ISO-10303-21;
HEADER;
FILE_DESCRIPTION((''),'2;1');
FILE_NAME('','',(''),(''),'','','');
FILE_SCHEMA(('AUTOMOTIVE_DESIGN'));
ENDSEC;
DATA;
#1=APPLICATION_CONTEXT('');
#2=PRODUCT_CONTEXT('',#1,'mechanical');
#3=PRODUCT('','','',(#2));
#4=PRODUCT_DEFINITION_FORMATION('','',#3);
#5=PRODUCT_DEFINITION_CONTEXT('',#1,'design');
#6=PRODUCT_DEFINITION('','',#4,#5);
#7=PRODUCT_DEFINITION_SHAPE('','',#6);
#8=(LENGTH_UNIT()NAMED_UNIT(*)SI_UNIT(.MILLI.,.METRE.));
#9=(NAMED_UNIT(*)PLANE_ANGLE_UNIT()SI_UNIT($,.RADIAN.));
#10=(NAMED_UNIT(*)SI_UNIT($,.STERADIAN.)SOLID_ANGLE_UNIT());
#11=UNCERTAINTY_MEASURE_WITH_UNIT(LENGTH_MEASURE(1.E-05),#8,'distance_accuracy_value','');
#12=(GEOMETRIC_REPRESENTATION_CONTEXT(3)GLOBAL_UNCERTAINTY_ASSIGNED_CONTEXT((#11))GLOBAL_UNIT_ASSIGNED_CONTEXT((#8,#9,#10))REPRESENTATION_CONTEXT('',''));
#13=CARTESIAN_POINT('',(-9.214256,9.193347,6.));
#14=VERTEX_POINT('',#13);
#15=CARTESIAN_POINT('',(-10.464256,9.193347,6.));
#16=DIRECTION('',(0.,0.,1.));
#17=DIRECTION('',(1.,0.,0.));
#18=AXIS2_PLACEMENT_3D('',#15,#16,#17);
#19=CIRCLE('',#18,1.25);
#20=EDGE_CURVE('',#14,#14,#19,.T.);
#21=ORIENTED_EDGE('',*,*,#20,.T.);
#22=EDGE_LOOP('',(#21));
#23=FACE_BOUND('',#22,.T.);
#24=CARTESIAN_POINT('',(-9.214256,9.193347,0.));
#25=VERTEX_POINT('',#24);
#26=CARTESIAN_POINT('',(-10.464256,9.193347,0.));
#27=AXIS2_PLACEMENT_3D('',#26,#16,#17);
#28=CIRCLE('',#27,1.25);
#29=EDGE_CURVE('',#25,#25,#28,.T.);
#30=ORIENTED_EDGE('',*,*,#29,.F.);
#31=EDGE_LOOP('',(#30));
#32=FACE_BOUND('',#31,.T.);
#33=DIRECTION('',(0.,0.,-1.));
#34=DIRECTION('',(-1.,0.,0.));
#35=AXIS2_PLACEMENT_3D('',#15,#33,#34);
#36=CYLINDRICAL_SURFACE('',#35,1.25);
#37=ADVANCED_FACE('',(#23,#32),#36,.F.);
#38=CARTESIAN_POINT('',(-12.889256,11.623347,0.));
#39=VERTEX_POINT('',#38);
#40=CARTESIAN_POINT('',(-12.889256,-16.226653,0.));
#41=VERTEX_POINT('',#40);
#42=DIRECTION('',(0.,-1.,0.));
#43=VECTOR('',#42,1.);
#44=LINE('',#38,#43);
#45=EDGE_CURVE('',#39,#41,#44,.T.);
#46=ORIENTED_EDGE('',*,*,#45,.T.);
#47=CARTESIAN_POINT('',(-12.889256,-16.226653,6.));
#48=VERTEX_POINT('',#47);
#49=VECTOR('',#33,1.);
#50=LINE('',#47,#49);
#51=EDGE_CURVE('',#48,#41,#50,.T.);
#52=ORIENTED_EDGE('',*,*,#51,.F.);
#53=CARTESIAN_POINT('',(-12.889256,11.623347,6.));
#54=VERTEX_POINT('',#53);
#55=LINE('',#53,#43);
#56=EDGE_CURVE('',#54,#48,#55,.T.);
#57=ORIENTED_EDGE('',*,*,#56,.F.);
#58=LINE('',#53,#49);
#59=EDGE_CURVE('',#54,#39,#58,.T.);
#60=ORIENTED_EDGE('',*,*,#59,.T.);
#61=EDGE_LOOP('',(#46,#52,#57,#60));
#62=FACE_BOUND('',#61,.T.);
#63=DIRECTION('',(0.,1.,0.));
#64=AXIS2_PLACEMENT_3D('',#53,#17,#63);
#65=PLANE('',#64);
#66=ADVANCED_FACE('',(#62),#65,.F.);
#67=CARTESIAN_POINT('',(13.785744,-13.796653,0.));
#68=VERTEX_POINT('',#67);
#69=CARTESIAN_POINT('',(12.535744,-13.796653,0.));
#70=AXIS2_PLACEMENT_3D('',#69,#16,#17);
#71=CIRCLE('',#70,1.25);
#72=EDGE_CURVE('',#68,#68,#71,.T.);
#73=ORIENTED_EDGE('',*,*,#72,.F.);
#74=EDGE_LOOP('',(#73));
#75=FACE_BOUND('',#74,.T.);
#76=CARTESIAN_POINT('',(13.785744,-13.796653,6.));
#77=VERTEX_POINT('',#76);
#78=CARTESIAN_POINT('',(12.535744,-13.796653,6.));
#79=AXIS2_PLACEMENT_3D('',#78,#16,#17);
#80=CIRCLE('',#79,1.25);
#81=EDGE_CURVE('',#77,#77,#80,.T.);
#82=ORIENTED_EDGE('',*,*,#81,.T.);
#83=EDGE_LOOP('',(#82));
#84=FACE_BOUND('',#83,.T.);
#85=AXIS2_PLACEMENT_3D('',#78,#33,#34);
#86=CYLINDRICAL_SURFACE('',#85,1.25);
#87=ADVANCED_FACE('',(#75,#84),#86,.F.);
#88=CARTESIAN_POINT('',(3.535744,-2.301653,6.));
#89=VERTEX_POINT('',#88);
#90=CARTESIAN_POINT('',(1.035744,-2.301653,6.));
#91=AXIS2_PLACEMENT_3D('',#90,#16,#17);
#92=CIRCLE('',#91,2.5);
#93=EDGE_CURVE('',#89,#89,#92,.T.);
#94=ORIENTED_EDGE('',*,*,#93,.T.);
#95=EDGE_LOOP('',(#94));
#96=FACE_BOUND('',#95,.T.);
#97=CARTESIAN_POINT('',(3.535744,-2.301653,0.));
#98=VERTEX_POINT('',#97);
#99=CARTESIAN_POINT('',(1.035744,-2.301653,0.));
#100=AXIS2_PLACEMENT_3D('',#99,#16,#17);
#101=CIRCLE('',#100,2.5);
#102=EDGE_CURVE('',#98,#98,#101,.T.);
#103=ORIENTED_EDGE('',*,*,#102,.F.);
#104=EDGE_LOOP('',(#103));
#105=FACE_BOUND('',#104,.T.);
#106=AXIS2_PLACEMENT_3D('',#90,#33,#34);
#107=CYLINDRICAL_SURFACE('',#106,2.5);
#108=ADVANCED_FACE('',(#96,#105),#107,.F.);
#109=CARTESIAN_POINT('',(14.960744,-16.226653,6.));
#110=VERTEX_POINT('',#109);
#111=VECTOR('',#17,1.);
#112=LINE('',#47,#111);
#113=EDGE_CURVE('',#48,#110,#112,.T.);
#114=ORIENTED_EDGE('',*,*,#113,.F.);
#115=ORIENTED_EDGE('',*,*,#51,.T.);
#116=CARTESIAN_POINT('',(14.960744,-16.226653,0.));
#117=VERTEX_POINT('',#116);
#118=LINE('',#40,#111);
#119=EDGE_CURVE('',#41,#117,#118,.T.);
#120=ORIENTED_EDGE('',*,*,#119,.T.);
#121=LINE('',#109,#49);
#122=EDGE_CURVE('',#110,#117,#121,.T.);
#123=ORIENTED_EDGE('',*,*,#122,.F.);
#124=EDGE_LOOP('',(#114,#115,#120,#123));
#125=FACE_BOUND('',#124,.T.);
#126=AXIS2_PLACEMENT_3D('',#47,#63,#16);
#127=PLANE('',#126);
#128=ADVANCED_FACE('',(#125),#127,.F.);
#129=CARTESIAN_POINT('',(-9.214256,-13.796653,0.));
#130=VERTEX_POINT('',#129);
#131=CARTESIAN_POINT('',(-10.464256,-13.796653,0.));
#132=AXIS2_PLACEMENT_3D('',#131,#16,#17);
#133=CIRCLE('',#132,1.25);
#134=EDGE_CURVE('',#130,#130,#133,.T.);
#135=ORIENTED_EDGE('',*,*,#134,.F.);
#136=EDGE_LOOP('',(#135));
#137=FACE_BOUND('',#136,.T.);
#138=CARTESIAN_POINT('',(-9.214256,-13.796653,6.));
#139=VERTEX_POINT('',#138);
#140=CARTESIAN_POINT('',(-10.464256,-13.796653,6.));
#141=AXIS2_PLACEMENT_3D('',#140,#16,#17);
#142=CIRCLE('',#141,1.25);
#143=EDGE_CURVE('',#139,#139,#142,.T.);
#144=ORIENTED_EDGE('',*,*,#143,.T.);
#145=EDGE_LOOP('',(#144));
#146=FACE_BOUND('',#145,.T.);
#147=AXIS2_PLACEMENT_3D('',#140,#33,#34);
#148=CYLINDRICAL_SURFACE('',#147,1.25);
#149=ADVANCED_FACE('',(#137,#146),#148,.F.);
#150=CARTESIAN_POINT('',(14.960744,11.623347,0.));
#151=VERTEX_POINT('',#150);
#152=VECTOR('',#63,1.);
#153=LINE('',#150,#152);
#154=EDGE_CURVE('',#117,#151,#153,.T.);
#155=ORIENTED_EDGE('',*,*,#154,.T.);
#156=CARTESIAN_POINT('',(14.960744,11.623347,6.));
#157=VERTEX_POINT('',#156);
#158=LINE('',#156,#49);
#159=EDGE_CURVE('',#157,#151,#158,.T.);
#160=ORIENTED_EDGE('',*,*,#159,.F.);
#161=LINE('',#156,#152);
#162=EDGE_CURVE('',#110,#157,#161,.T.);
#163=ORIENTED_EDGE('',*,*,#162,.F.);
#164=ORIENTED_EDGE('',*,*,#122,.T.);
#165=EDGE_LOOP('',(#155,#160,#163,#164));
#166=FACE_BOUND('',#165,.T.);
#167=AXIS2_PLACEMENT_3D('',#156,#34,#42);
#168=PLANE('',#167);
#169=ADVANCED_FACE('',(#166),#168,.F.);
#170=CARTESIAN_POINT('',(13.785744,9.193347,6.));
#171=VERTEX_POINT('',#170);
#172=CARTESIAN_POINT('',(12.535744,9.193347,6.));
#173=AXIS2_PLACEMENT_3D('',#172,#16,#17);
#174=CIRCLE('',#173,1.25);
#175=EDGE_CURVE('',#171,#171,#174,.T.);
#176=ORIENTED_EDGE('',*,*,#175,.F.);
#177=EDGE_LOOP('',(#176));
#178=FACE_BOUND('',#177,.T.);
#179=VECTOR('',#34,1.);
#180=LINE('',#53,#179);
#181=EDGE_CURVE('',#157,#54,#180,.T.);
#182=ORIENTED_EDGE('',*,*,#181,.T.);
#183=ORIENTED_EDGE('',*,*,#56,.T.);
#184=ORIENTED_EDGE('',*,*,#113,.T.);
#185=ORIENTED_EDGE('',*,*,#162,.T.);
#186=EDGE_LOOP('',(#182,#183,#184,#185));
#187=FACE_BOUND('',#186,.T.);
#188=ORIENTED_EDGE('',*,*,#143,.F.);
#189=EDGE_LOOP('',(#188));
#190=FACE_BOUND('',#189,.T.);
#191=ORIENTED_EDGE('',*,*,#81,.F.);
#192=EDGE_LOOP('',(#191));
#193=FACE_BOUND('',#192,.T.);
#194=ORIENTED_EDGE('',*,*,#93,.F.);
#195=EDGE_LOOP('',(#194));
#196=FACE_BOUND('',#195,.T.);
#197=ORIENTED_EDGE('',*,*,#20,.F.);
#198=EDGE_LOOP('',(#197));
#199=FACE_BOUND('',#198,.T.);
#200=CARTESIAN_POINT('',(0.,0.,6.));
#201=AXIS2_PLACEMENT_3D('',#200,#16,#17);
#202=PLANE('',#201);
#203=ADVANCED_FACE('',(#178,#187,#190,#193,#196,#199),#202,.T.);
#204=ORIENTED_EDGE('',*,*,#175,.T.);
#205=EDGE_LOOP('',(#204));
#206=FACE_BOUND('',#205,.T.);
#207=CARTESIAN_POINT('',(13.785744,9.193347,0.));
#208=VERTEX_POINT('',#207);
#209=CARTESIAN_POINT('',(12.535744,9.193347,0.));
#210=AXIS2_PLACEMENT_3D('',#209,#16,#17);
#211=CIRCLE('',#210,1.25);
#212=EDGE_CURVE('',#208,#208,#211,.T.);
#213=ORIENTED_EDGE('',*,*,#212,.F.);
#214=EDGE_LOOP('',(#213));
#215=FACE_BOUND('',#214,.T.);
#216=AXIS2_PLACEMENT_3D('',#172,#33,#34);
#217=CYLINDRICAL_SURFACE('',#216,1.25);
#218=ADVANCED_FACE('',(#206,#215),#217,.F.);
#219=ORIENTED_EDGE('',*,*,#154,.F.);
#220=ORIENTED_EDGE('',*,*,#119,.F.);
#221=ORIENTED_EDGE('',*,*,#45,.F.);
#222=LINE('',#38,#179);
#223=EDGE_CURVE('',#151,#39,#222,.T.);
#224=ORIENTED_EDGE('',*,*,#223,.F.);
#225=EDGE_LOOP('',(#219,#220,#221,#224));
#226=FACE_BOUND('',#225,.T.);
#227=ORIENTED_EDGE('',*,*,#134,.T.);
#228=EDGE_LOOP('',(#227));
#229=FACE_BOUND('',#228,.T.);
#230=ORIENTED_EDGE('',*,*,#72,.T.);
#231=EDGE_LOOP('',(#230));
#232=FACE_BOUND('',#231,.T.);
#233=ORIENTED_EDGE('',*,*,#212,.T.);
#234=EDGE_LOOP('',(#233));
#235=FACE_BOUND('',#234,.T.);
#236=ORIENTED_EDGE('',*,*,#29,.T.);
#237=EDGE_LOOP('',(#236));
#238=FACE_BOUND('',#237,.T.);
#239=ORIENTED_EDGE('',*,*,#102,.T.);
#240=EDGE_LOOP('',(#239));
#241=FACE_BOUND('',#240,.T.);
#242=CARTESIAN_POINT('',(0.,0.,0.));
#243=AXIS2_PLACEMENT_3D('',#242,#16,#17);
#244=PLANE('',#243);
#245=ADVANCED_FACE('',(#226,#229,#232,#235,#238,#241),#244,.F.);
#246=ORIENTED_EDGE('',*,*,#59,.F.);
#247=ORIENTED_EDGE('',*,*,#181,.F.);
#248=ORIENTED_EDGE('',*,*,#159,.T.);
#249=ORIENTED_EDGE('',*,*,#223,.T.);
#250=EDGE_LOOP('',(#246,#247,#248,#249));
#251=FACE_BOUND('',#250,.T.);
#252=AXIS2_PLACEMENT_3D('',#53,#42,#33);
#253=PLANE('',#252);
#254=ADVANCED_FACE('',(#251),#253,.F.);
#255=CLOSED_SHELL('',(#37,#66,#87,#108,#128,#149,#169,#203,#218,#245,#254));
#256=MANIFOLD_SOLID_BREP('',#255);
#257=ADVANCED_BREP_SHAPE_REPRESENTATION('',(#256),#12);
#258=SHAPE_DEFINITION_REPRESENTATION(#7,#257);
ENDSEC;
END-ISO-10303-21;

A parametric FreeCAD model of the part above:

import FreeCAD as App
import Part
import Sketcher

V = App.Vector

doc = App.newDocument("Part")
body = doc.addObject("PartDesign::Body", "Body")

sketch1 = body.newObject("Sketcher::SketchObject", "Sketch")
sketch1.AttachmentSupport = (doc.getObject("XY_Plane"), [""])
sketch1.MapMode = "FlatFace"
sketch1.addGeometry([
    Part.LineSegment(V(-12.9, 11.6, 0), V(-12.9, -16.2, 0)),
    Part.LineSegment(V(-12.9, -16.2, 0), V(15, -16.2, 0)),
    Part.LineSegment(V(15, -16.2, 0), V(15, 11.6, 0)),
    Part.LineSegment(V(15, 11.6, 0), V(-12.9, 11.6, 0)),
    Part.Circle(V(-10.5, -13.8, 0), V(0, 0, 1), 1.2),
    Part.Circle(V(12.5, -13.8, 0), V(0, 0, 1), 1.2),
    Part.Circle(V(-10.5, 9.2, 0), V(0, 0, 1), 1.2),
    Part.Circle(V(1, -2.3, 0), V(0, 0, 1), 2.5),
    Part.Circle(V(12.5, 9.2, 0), V(0, 0, 1), 1.2),
], False)
sketch1.addConstraint([
    Sketcher.Constraint("Coincident", 0, 2, 1, 1),
    Sketcher.Constraint("Coincident", 1, 2, 2, 1),
    Sketcher.Constraint("Coincident", 2, 2, 3, 1),
    Sketcher.Constraint("Coincident", 3, 2, 0, 1),
    Sketcher.Constraint("Vertical", 0),
    Sketcher.Constraint("Horizontal", 1),
    Sketcher.Constraint("Vertical", 2),
    Sketcher.Constraint("Horizontal", 3),
    Sketcher.Constraint("Equal", 4, 5),
    Sketcher.Constraint("Equal", 5, 6),
    Sketcher.Constraint("Equal", 6, 8),
    Sketcher.Constraint("Horizontal", 4, 3, 5, 3),
    Sketcher.Constraint("Horizontal", 6, 3, 8, 3),
    Sketcher.Constraint("Vertical", 4, 3, 6, 3),
    Sketcher.Constraint("Vertical", 5, 3, 8, 3),
    Sketcher.Constraint("Equal", 3, 0),
    Sketcher.Constraint("Diameter", 7, 5.0),
    Sketcher.Constraint("Diameter", 4, 2.5),
    Sketcher.Constraint("DistanceX", 4, 3, 5, 3, 23.0),
    Sketcher.Constraint("DistanceX", 1, 1, 1, 2, 27.85),
    Sketcher.Constraint("DistanceX", 4, 3, 7, 3, 11.5),
    Sketcher.Constraint("DistanceY", 4, 3, 6, 3, 22.99),
    Sketcher.Constraint("DistanceY", 0, 2, 4, 3, 2.43),
    Sketcher.Constraint("DistanceY", 4, 3, 7, 3, 11.495),
    Sketcher.Constraint("DistanceX", 0, 2, 4, 3, 2.425),
    Sketcher.Constraint("DistanceX", 4, 3, -1, 1, 10.464256),
    Sketcher.Constraint("DistanceY", 4, 3, -1, 1, 13.796653),
])
pad1 = body.newObject("PartDesign::Pad", "Pad")
pad1.Profile = sketch1
pad1.Length = 6

doc.recompute()
